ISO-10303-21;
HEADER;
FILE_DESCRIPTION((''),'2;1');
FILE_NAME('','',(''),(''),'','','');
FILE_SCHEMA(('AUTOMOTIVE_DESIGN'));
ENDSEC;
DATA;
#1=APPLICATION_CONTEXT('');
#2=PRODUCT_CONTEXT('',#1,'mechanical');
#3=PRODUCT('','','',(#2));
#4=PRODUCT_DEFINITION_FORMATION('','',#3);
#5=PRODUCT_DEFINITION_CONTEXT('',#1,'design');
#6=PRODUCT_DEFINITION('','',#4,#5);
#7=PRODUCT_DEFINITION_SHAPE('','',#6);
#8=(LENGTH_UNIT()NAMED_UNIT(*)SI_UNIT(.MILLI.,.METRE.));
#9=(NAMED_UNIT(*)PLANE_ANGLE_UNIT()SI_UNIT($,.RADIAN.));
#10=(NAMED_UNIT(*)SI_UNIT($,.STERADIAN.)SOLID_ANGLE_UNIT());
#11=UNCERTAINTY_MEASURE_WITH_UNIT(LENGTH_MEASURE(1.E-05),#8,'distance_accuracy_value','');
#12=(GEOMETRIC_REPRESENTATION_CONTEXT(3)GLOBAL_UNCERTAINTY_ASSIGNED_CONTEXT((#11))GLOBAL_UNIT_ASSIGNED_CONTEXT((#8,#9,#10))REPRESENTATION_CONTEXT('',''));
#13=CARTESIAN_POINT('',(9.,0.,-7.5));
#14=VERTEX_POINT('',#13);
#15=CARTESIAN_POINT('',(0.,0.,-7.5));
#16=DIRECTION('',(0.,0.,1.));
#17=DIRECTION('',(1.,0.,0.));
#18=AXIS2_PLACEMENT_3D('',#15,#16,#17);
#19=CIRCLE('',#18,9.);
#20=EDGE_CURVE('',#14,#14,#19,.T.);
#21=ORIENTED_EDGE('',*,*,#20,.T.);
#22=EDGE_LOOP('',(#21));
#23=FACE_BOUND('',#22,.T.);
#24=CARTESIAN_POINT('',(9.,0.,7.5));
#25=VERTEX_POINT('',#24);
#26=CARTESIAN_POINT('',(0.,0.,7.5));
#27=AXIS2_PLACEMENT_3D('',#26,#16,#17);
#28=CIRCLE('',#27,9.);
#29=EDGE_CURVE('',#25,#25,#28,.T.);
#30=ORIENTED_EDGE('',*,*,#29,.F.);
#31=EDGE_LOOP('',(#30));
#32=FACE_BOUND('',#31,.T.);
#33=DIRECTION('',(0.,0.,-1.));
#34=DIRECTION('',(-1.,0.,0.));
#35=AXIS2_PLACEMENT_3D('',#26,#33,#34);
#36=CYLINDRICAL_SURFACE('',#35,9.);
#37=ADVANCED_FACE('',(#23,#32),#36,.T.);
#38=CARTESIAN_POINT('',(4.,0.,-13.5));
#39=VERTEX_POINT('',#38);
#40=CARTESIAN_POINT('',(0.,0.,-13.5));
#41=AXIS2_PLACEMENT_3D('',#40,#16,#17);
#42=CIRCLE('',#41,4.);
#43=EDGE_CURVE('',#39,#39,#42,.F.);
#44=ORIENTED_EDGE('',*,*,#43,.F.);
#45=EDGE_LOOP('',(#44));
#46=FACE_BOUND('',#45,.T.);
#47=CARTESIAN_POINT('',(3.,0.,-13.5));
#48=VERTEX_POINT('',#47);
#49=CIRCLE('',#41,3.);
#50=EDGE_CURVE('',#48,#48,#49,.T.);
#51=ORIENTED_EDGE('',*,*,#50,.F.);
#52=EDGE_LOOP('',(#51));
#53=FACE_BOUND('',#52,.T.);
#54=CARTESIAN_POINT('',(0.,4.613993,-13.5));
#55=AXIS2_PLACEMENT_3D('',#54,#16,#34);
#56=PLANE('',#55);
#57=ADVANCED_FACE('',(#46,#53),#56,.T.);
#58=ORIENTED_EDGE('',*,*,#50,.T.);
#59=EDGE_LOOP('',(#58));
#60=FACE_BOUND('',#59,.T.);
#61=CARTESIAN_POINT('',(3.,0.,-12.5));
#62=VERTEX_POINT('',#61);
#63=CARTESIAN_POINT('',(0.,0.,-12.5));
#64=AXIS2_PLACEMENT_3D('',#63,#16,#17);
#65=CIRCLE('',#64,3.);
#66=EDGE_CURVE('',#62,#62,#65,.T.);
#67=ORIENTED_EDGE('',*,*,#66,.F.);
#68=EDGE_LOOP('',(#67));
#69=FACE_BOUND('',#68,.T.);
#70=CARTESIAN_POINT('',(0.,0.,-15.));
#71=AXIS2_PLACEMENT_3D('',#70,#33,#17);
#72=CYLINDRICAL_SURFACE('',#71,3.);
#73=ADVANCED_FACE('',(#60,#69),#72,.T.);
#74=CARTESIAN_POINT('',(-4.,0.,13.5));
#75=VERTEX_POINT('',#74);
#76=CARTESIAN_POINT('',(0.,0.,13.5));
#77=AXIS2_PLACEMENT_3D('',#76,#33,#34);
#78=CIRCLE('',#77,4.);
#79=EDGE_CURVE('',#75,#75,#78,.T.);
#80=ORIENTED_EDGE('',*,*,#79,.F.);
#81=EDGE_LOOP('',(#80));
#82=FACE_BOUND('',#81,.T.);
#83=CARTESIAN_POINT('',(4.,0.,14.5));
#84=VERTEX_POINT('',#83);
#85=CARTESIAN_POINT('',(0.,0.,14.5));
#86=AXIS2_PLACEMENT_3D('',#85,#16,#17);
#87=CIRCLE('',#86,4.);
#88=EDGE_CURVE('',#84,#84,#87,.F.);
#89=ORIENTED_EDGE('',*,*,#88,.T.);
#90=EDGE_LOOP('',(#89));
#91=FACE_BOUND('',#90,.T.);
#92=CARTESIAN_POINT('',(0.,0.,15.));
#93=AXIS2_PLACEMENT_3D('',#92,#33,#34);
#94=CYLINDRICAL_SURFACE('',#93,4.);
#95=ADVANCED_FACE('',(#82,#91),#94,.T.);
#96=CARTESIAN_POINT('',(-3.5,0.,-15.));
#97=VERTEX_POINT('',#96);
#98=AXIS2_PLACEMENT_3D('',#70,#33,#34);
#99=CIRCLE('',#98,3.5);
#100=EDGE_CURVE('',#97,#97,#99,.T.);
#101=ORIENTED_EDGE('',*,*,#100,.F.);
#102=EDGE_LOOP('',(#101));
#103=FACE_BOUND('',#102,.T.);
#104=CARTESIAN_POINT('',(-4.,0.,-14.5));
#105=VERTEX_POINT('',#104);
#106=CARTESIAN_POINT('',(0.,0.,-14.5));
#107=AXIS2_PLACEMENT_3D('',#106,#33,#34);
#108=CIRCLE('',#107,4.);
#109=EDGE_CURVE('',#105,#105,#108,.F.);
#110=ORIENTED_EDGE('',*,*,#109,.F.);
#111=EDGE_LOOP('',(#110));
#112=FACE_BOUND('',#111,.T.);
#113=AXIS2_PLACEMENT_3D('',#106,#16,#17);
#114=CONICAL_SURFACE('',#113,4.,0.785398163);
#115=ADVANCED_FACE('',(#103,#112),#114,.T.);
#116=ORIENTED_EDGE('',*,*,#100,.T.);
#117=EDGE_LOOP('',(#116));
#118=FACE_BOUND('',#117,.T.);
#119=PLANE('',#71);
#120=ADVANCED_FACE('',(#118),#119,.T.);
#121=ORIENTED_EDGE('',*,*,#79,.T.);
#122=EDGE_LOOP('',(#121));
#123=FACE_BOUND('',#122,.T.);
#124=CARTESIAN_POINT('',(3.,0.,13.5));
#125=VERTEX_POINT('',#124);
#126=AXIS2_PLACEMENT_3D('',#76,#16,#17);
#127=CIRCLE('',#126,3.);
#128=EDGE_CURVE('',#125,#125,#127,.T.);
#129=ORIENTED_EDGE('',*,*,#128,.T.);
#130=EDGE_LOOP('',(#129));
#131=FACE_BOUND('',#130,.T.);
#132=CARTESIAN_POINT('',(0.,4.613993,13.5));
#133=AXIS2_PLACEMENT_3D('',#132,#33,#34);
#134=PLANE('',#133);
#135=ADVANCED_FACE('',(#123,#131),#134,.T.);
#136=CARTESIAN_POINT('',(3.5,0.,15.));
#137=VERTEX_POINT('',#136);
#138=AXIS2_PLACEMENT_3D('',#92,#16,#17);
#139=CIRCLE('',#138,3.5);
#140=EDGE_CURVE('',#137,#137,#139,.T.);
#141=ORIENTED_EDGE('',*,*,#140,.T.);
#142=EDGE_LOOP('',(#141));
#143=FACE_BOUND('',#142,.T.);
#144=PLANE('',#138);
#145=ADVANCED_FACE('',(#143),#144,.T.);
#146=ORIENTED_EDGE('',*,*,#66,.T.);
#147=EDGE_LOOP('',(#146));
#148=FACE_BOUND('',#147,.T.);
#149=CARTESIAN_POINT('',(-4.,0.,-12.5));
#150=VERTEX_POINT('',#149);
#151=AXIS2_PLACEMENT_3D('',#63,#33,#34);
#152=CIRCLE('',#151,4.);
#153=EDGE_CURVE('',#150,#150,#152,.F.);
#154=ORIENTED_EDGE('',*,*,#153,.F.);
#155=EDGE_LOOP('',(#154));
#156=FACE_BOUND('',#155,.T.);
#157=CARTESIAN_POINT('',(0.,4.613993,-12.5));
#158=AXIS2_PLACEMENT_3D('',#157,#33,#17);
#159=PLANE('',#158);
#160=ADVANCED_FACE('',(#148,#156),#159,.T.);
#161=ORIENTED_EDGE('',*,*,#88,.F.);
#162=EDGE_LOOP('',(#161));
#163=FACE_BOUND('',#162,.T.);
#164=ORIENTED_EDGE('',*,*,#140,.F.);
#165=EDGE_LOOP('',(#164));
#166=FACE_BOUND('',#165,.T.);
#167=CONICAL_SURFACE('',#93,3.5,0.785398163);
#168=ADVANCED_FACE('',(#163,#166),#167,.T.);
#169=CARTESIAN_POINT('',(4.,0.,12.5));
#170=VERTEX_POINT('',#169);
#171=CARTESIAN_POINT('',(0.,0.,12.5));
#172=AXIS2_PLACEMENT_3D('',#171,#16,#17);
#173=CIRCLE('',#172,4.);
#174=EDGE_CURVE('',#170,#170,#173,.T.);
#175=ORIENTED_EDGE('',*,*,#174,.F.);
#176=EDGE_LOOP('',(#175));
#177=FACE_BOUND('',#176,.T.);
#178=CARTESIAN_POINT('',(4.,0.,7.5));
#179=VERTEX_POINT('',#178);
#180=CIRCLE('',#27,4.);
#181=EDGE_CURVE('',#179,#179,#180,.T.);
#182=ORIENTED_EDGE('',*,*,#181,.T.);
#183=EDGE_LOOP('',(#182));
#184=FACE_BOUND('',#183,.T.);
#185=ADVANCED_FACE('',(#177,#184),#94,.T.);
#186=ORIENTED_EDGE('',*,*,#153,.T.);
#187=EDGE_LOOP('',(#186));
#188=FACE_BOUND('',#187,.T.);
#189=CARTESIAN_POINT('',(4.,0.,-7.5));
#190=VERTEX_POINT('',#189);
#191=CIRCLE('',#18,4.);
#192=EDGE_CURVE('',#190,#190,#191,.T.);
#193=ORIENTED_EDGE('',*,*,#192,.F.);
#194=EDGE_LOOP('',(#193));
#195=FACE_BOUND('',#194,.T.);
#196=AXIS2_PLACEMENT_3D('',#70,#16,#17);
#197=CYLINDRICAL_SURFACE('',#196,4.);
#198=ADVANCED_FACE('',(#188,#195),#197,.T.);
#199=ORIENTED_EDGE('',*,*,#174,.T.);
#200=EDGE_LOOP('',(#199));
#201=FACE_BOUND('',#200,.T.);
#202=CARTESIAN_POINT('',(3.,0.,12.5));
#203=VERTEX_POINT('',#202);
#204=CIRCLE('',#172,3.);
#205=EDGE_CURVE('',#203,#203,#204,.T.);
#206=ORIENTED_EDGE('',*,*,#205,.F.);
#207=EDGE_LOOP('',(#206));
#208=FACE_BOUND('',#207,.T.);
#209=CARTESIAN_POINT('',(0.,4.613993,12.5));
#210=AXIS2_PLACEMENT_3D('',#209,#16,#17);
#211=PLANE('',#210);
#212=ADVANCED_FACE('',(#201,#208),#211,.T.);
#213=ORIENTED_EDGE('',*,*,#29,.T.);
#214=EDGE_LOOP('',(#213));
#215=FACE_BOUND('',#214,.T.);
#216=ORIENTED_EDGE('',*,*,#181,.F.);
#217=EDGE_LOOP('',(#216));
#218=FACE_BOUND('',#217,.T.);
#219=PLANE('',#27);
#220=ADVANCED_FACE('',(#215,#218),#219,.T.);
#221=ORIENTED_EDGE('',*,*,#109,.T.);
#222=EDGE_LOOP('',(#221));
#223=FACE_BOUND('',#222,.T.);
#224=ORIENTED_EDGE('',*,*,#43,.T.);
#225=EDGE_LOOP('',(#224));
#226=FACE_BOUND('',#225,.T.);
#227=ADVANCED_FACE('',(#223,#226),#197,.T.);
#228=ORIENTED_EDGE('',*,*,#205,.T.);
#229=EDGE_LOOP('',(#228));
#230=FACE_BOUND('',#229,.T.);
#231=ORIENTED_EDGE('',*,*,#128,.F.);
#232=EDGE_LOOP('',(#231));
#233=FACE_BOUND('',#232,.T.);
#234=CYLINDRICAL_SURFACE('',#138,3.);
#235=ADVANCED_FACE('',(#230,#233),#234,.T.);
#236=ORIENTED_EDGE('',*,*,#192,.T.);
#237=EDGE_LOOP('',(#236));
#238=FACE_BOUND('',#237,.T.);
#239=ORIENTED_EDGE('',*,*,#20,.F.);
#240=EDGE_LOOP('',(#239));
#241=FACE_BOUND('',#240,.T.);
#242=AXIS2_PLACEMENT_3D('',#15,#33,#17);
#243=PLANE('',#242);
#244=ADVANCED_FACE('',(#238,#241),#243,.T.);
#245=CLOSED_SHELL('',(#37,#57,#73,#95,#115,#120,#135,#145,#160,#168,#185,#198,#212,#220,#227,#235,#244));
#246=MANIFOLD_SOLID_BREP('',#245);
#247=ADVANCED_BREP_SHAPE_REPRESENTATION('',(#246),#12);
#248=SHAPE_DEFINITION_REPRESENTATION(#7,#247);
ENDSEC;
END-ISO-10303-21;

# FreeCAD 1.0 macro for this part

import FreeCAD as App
import Part
import Sketcher
from FreeCAD import Vector
Q = App.Units.Quantity


def edges_at(feature, points):
    """Names of the edges that pass closest to the given points."""
    edges = feature.Shape.Edges
    near = lambda p: min(range(len(edges)), key=lambda i: edges[i].distToShape(Part.Vertex(*p))[0])
    return sorted({f"Edge{near(p) + 1}" for p in points})

doc = App.newDocument("Part")
body = doc.addObject("PartDesign::Body", "Body")

# Sketch on XY plane
sketch1 = doc.addObject("Sketcher::SketchObject", "Sketch")
body.addObject(sketch1)
sketch1.AttachmentSupport = (doc.XY_Plane, [""])
sketch1.MapMode = "FlatFace"
sketch1.addGeometry(Part.Circle(Vector(0, 0, 0), Vector(0, 0, 1), 9), False)
sketch1.addConstraint(Sketcher.Constraint("Coincident", 0, 3, -1, 1))
sketch1.addConstraint(Sketcher.Constraint("Diameter", 0, Q("18 mm")))
pad1 = doc.addObject("PartDesign::Pad", "Pad")
body.addObject(pad1)
pad1.Profile = sketch1
pad1.Length = 7.5

# Sketch on XY plane
sketch2 = doc.addObject("Sketcher::SketchObject", "Sketch001")
body.addObject(sketch2)
sketch2.AttachmentSupport = (doc.XY_Plane, [""])
sketch2.MapMode = "FlatFace"
sketch2.AttachmentOffset = App.Placement(Vector(0, 0, 7.5), App.Rotation())
sketch2.addGeometry(Part.Circle(Vector(0, 0, 0), Vector(0, 0, 1), 4), False)
sketch2.addConstraint(Sketcher.Constraint("Coincident", 0, 3, -1, 1))
sketch2.addConstraint(Sketcher.Constraint("Diameter", 0, Q("8 mm")))
pad2 = doc.addObject("PartDesign::Pad", "Pad001")
body.addObject(pad2)
pad2.Profile = sketch2
pad2.Length = 7.5

# Sketch on YZ plane
sketch3 = doc.addObject("Sketcher::SketchObject", "Sketch002")
body.addObject(sketch3)
sketch3.AttachmentSupport = (doc.YZ_Plane, [""])
sketch3.MapMode = "FlatFace"
sketch3.addGeometry(Part.LineSegment(Vector(4.6, 13.5, 0), Vector(3, 13.5, 0)), False)
sketch3.addGeometry(Part.LineSegment(Vector(3, 13.5, 0), Vector(3, 12.5, 0)), False)
sketch3.addGeometry(Part.LineSegment(Vector(3, 12.5, 0), Vector(4.6, 12.5, 0)), False)
sketch3.addGeometry(Part.LineSegment(Vector(4.6, 12.5, 0), Vector(4.6, 13.5, 0)), False)
sketch3.addConstraint(Sketcher.Constraint("Coincident", 0, 2, 1, 1))
sketch3.addConstraint(Sketcher.Constraint("Coincident", 1, 2, 2, 1))
sketch3.addConstraint(Sketcher.Constraint("Coincident", 2, 2, 3, 1))
sketch3.addConstraint(Sketcher.Constraint("Coincident", 3, 2, 0, 1))
sketch3.addConstraint(Sketcher.Constraint("Horizontal", 0))
sketch3.addConstraint(Sketcher.Constraint("Vertical", 1))
sketch3.addConstraint(Sketcher.Constraint("Horizontal", 2))
sketch3.addConstraint(Sketcher.Constraint("Vertical", 3))
sketch3.addConstraint(Sketcher.Constraint("DistanceY", 1, 2, 1, 1, Q("1 mm")))
sketch3.addConstraint(Sketcher.Constraint("DistanceX", -1, 1, 0, 2, Q("3 mm")))
sketch3.addConstraint(Sketcher.Constraint("DistanceY", -1, 1, 0, 2, Q("13.5 mm")))
sketch3.addConstraint(Sketcher.Constraint("DistanceX", 0, 2, 0, 1, Q("1.613993 mm")))
groove = doc.addObject("PartDesign::Groove", "Groove")
body.addObject(groove)
groove.Profile = sketch3
groove.ReferenceAxis = (sketch3, ["V_Axis"])
groove.Angle = 360
doc.recompute()

chamfer = doc.addObject("PartDesign::Chamfer", "Chamfer")
body.addObject(chamfer)
chamfer.Base = (groove, edges_at(groove, [(-4, 0, 15)]))
chamfer.Size = 0.5
doc.recompute()

mirrored = doc.addObject("PartDesign::Mirrored", "Mirrored")
body.addObject(mirrored)
mirrored.Originals = [pad1, pad2, groove]
mirrored.MirrorPlane = (doc.XY_Plane, [""])
body.Tip = mirrored
doc.recompute()

chamfer2 = doc.addObject("PartDesign::Chamfer", "Chamfer001")
body.addObject(chamfer2)
chamfer2.Base = (mirrored, edges_at(mirrored, [(-4, 0, -15)]))
chamfer2.Size = 0.5

doc.recompute()
